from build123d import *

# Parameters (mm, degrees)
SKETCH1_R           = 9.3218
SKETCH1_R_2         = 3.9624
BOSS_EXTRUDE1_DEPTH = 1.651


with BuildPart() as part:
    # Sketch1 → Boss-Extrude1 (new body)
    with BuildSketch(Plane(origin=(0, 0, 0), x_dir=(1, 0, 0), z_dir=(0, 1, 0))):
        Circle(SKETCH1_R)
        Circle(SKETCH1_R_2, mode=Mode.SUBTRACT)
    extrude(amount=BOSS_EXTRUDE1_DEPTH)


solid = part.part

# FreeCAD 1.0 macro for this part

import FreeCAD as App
import Part
import Sketcher
from FreeCAD import Vector
Q = App.Units.Quantity

doc = App.newDocument("Part")
body = doc.addObject("PartDesign::Body", "Body")

# Sketch on XZ plane
sketch1 = doc.addObject("Sketcher::SketchObject", "Sketch")
body.addObject(sketch1)
sketch1.AttachmentSupport = (doc.XZ_Plane, [""])
sketch1.MapMode = "FlatFace"
sketch1.addGeometry([
    Part.Circle(Vector(0, 0, 0), Vector(0, 0, 1), 9.3218),
    Part.Circle(Vector(0, 0, 0), Vector(0, 0, 1), 3.9624),
], False)
sketch1.addConstraint([
    Sketcher.Constraint("Coincident", 0, 3, -1, 1),
    Sketcher.Constraint("Coincident", 1, 3, -1, 1),
    Sketcher.Constraint("Diameter", 0, Q("0.734 in")),
    Sketcher.Constraint("Diameter", 1, Q("0.312 in")),
])
pad1 = doc.addObject("PartDesign::Pad", "Pad")
body.addObject(pad1)
pad1.Profile = sketch1
pad1.Length = Q("0.065 in")
pad1.Reversed = True

doc.recompute()
